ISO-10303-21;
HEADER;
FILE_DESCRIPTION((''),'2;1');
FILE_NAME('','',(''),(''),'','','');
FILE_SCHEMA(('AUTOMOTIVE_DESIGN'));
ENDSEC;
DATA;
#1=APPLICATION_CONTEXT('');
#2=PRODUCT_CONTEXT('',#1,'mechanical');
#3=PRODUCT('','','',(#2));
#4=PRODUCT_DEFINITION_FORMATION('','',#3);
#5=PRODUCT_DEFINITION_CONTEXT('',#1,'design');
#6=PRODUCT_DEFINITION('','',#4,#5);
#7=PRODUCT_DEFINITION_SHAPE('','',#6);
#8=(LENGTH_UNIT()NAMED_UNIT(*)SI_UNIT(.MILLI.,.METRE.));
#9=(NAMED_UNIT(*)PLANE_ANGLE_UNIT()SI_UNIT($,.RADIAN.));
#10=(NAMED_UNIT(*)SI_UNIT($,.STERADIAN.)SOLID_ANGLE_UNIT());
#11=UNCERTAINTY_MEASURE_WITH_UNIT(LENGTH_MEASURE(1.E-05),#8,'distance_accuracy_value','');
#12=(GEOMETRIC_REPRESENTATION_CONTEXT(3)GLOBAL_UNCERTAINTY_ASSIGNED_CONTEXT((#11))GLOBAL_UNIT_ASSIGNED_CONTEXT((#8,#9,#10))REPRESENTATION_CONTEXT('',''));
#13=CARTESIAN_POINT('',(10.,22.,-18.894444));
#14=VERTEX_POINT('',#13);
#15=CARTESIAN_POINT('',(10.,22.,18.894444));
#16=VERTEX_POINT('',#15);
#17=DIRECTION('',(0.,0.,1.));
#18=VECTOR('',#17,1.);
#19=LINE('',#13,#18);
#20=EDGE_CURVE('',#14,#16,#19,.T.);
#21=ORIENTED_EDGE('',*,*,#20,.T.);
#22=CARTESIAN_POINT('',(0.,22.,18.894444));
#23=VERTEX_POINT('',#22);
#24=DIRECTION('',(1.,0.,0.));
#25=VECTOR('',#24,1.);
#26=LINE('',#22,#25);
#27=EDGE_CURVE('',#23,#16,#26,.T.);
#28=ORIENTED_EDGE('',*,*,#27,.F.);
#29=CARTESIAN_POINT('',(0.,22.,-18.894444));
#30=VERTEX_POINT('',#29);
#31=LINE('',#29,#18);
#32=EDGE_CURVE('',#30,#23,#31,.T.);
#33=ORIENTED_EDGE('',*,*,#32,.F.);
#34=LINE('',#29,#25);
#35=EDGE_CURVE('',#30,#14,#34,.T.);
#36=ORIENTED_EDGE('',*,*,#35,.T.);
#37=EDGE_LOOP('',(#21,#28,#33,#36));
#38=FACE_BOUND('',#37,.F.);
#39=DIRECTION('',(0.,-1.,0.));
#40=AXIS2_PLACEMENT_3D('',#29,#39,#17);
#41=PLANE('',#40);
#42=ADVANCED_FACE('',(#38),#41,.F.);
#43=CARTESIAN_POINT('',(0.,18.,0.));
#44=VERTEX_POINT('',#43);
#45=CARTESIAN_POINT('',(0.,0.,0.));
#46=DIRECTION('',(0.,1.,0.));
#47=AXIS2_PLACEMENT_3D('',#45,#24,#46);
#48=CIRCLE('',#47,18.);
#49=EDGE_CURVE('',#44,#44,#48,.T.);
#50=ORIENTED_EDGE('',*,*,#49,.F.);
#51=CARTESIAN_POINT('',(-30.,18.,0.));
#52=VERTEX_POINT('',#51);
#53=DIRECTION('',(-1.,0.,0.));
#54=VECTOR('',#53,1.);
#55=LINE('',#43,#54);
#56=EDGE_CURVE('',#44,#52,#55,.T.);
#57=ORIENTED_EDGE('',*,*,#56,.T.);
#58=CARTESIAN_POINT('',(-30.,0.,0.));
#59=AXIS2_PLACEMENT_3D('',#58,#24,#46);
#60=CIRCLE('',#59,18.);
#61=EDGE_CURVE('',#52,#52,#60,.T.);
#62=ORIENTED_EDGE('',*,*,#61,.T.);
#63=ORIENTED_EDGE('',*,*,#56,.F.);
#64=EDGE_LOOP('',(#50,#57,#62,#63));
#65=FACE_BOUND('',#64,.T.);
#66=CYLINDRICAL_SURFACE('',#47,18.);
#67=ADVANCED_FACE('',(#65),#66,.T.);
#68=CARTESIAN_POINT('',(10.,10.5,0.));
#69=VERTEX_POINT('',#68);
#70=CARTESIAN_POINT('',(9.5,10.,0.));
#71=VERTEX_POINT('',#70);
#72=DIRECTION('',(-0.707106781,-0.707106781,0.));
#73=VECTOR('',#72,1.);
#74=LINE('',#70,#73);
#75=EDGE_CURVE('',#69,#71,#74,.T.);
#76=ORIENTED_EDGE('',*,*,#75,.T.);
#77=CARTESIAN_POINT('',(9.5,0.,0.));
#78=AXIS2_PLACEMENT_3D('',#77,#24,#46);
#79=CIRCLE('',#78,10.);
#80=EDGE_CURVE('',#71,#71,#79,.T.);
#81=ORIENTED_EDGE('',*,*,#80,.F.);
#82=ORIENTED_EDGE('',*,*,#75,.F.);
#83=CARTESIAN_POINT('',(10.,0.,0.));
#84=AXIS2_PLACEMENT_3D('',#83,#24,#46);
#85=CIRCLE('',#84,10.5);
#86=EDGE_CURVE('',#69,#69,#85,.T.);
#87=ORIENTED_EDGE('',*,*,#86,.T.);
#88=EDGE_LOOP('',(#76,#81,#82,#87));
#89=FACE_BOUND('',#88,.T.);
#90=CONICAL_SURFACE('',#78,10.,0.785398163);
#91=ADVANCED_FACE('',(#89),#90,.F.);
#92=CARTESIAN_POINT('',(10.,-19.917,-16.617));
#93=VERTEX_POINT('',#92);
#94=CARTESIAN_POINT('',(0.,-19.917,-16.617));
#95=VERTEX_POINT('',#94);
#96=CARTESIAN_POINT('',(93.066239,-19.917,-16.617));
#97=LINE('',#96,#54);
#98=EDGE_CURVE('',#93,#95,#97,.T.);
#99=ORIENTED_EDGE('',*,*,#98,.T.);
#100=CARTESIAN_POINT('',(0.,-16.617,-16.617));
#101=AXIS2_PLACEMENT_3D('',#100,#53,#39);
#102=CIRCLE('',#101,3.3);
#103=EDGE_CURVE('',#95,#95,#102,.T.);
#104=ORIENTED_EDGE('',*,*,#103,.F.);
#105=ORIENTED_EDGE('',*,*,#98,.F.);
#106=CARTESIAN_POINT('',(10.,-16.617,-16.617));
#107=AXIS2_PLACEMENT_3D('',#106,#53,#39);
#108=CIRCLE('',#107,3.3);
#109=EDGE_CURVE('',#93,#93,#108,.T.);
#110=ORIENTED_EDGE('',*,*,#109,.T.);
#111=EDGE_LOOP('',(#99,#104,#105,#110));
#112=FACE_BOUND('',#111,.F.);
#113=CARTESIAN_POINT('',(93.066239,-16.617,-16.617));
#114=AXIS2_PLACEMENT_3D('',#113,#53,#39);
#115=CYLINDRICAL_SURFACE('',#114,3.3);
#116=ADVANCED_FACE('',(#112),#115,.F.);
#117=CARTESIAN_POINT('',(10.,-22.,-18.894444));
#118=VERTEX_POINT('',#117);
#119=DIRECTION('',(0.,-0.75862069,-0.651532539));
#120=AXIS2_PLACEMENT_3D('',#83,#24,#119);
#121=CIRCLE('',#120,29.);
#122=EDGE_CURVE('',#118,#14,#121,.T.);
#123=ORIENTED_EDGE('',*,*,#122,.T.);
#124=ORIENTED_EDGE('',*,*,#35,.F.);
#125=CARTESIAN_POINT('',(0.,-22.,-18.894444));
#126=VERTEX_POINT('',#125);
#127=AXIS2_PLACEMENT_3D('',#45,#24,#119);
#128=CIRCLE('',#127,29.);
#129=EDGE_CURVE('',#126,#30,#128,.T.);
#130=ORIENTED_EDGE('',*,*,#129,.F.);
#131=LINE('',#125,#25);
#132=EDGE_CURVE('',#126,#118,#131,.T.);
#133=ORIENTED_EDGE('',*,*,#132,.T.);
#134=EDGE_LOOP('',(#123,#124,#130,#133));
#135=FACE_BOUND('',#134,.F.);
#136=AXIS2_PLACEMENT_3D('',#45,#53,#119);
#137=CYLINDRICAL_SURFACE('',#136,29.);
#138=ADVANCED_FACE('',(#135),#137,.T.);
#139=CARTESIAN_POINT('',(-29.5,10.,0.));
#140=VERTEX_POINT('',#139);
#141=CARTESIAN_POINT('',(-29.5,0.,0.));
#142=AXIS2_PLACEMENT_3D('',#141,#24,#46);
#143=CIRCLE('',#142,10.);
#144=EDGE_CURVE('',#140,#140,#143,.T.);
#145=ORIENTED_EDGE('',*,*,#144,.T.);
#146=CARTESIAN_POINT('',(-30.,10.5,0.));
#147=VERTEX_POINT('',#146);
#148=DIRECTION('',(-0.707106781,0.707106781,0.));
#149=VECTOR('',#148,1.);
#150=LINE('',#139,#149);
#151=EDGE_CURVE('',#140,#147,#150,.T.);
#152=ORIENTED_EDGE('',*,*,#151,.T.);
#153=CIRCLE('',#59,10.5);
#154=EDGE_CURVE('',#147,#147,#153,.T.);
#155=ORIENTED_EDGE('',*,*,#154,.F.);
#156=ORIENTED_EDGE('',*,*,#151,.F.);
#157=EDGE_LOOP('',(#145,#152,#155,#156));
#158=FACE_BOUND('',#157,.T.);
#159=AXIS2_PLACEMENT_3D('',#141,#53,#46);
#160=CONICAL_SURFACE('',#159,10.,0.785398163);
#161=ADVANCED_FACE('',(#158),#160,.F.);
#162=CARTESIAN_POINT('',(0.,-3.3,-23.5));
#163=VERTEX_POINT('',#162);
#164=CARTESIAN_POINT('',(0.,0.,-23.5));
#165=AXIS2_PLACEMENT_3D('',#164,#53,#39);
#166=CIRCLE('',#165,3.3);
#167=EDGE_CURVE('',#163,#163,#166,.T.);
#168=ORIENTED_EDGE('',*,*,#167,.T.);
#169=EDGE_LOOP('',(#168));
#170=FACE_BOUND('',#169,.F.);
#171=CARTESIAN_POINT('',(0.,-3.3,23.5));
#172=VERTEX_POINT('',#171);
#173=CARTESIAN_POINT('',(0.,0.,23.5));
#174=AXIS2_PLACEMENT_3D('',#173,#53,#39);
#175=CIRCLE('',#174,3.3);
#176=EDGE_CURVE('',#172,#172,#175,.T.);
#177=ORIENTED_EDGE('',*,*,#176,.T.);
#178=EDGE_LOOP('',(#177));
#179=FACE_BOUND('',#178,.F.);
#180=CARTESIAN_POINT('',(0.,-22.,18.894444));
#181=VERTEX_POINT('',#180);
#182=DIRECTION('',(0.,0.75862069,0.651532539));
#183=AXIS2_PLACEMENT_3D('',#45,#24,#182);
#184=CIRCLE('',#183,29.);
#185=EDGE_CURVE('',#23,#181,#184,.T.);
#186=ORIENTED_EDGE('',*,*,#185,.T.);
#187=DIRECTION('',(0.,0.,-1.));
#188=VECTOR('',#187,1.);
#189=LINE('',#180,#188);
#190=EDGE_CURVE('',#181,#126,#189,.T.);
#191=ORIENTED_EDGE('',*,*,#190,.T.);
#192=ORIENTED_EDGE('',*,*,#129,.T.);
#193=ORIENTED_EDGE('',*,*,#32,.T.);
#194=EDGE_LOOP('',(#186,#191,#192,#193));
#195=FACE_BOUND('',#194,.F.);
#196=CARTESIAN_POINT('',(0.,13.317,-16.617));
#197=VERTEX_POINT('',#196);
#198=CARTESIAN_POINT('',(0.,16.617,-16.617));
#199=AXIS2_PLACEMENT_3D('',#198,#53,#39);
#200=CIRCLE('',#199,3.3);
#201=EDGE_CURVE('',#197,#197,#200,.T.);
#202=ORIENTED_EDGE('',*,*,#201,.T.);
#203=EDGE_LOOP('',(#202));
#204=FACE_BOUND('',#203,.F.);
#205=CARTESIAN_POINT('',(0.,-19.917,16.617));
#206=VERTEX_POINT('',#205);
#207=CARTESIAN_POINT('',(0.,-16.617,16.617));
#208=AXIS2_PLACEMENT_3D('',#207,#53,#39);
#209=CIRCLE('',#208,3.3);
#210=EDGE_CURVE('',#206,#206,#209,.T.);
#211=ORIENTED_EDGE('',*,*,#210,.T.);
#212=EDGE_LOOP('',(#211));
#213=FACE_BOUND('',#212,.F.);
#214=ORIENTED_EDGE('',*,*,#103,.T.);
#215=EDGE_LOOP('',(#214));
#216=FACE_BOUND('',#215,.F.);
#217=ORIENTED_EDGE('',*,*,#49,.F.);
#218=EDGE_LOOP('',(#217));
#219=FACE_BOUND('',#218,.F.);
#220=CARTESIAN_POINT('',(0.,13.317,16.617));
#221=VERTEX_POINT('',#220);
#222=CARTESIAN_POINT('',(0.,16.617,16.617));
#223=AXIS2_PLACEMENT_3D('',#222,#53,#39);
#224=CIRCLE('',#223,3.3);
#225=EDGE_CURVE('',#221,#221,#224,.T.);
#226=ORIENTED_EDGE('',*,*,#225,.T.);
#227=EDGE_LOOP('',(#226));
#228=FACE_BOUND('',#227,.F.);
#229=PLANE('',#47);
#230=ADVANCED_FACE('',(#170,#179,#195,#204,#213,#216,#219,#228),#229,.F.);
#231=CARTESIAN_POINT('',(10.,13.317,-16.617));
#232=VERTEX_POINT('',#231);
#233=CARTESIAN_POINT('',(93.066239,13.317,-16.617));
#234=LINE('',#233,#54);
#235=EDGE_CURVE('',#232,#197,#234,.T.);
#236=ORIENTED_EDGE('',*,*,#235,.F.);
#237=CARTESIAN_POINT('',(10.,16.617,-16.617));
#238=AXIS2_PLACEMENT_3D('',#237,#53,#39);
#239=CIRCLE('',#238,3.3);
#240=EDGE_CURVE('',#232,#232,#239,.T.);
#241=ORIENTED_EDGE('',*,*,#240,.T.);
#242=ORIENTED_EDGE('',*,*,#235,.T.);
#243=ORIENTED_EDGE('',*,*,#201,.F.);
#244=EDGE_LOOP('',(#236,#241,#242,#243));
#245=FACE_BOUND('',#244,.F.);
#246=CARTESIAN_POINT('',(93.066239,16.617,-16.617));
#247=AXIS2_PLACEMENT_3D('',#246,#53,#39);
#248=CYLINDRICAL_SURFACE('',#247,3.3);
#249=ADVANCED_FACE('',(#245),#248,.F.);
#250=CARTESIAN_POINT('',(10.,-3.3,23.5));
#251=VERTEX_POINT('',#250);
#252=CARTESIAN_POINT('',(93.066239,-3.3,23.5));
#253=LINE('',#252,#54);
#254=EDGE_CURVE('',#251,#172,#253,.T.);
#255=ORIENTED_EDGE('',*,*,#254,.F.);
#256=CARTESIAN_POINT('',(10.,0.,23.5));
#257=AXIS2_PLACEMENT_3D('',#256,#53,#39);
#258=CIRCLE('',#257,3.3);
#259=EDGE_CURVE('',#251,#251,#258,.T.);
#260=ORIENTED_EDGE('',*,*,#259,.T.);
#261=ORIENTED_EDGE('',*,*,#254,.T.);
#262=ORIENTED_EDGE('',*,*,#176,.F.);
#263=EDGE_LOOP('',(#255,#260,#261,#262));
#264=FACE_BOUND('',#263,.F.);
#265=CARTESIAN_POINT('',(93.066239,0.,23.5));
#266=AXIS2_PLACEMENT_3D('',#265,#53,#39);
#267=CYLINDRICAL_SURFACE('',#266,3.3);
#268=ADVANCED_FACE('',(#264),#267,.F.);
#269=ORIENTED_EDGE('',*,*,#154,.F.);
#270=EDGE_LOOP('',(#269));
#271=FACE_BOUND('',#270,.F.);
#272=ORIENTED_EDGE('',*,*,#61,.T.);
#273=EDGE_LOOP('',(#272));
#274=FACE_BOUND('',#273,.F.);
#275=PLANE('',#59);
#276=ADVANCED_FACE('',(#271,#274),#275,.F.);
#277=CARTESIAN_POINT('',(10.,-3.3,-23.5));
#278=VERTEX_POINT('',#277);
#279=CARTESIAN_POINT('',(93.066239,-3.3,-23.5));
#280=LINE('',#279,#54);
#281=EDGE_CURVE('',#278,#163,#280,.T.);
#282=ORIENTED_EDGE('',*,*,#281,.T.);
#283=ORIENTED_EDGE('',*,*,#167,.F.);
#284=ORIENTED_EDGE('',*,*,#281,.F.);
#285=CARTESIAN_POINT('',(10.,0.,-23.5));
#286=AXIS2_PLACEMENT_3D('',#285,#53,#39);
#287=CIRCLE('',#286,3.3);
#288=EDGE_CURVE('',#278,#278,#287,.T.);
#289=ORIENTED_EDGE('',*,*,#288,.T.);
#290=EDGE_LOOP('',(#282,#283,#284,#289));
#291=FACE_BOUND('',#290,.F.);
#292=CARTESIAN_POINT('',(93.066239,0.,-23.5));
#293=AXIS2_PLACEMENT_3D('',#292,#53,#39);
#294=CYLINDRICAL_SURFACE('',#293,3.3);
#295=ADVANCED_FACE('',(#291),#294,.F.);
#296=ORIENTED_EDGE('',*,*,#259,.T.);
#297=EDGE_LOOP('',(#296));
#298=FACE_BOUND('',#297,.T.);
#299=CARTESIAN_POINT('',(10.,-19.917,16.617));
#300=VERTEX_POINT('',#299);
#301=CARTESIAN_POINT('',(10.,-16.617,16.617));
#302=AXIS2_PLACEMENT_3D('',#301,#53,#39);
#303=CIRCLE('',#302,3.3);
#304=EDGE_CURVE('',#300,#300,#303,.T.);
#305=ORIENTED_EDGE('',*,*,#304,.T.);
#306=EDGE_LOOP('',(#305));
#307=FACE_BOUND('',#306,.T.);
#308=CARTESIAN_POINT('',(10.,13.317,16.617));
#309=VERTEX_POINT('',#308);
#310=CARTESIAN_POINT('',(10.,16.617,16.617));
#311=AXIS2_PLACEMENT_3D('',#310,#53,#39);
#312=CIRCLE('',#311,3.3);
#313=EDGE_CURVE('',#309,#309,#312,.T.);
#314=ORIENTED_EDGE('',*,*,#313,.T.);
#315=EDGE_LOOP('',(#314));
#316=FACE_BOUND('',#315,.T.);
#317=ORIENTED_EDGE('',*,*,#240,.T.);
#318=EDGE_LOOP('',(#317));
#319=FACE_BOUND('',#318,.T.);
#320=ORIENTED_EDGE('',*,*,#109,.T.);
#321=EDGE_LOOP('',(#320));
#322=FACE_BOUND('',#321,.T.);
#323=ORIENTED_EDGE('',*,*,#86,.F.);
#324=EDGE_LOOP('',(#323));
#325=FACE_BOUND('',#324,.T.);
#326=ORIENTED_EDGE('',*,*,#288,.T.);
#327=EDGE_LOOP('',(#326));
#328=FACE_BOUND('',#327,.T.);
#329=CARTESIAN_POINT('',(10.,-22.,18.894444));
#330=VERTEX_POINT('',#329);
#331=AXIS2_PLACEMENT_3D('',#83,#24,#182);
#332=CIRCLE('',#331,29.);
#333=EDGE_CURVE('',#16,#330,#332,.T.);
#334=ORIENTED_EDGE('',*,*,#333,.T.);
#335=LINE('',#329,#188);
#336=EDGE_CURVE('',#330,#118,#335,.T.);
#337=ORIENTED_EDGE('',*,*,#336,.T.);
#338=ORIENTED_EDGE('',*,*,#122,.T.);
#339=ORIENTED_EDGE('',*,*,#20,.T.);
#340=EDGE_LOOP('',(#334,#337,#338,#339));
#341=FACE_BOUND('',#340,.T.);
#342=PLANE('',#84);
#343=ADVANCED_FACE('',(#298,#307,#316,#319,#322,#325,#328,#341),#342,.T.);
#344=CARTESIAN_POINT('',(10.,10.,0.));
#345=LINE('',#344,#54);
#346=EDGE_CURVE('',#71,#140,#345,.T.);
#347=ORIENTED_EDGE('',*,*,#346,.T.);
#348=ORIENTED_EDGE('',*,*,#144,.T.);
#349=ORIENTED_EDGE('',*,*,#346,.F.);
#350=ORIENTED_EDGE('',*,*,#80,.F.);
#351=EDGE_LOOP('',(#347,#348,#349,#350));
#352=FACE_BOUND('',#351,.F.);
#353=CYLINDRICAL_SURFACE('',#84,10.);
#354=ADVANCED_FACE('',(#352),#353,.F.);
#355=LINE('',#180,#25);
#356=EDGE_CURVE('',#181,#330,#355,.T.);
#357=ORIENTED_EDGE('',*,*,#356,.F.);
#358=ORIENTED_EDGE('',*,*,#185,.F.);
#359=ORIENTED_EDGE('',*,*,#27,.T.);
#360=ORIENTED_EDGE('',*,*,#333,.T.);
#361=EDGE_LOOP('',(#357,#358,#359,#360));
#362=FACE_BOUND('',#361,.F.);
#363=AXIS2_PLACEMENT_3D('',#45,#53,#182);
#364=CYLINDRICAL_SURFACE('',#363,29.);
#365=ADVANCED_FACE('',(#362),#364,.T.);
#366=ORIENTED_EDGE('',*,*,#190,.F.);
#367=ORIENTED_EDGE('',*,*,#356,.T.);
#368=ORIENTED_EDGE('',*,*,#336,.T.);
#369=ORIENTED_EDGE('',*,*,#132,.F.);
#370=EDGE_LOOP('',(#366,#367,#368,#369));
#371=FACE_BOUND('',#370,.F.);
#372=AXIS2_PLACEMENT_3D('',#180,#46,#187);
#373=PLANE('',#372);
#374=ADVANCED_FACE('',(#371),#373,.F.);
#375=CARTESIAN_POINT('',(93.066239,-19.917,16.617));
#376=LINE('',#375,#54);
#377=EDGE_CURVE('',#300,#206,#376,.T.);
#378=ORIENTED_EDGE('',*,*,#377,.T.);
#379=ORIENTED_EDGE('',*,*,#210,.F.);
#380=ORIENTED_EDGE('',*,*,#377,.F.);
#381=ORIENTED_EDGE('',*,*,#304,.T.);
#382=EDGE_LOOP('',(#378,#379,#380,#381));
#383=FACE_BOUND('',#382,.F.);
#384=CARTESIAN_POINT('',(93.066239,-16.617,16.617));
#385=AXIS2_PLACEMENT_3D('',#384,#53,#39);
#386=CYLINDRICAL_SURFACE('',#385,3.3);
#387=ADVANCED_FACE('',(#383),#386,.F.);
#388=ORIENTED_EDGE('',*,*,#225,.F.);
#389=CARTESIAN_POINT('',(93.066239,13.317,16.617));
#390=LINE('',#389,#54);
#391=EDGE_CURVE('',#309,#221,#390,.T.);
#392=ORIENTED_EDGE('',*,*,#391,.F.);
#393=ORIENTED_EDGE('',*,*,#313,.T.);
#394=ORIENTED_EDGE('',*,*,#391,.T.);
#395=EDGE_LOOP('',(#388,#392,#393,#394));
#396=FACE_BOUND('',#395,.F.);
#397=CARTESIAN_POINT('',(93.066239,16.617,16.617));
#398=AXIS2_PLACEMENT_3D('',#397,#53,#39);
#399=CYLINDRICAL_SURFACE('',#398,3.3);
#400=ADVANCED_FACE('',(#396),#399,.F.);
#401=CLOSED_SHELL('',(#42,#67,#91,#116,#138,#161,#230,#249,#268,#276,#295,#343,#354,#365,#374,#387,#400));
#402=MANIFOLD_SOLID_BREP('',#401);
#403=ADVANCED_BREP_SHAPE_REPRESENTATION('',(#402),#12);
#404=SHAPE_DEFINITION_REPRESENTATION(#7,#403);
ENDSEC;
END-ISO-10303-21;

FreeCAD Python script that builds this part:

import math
import FreeCAD as App
import Part
import Sketcher


def edges_at(feature, points):
    """Names of the edges that pass closest to the given points."""
    edges = feature.Shape.Edges
    near = lambda p: min(range(len(edges)), key=lambda i: edges[i].distToShape(Part.Vertex(*p))[0])
    return sorted({f"Edge{near(p) + 1}" for p in points})

doc = App.newDocument("Part")
body = doc.addObject("PartDesign::Body", "Body")

# Sketch on YZ plane
sketch1 = body.newObject("Sketcher::SketchObject", "Sketch")
sketch1.AttachmentSupport = (doc.getObject("YZ_Plane"), [""])
sketch1.MapMode = "FlatFace"
sketch1.addGeometry(Part.Circle(App.Vector(0, 0, 0), App.Vector(0, 0, 1), 18), False)
sketch1.addConstraint([
    Sketcher.Constraint("Coincident", 0, 3, -1, 1),
    Sketcher.Constraint("Diameter", 0, 36.0),
])
pad1 = body.newObject("PartDesign::Pad", "Pad")
pad1.Profile = sketch1
pad1.Length = 30
pad1.Reversed = True

# Sketch on YZ plane
sketch2 = body.newObject("Sketcher::SketchObject", "Sketch001")
sketch2.AttachmentSupport = (doc.getObject("YZ_Plane"), [""])
sketch2.MapMode = "FlatFace"
sketch2.addGeometry([
    Part.LineSegment(App.Vector(-22, 18.894444, 0), App.Vector(-22, -18.894444, 0)),
    Part.ArcOfCircle(Part.Circle(App.Vector(0, 0, 0), App.Vector(0, 0, 1), 29), math.radians(-139.342751), math.radians(-40.657249)),
    Part.LineSegment(App.Vector(22, -18.894444, 0), App.Vector(22, 18.894444, 0)),
    Part.ArcOfCircle(Part.Circle(App.Vector(0, 0, 0), App.Vector(0, 0, 1), 29), math.radians(40.657249), math.radians(139.342751)),
], False)
sketch2.addConstraint([
    Sketcher.Constraint("Coincident", 0, 2, 1, 1),
    Sketcher.Constraint("Coincident", 1, 2, 2, 1),
    Sketcher.Constraint("Coincident", 2, 2, 3, 1),
    Sketcher.Constraint("Coincident", 3, 2, 0, 1),
    Sketcher.Constraint("Vertical", 0),
    Sketcher.Constraint("Vertical", 2),
    Sketcher.Constraint("Coincident", 1, 3, -1, 1),
    Sketcher.Constraint("Coincident", 3, 3, -1, 1),
    Sketcher.Constraint("Equal", 1, 3),
    Sketcher.Constraint("Horizontal", 0, 2, 1, 2),
    Sketcher.Constraint("Radius", 1, 29.0),
    Sketcher.Constraint("DistanceX", 0, 2, -1, 1, 22.0),
])
pad2 = body.newObject("PartDesign::Pad", "Pad001")
pad2.Profile = sketch2
pad2.Length = 10

# Sketch on YZ plane
sketch3 = body.newObject("Sketcher::SketchObject", "Sketch002")
sketch3.AttachmentSupport = (doc.getObject("YZ_Plane"), [""])
sketch3.MapMode = "FlatFace"
sketch3.AttachmentOffset = App.Placement(App.Vector(0, 0, 10), App.Rotation())
sketch3.addGeometry(Part.Circle(App.Vector(0, 0, 0), App.Vector(0, 0, 1), 10), False)
sketch3.addConstraint([
    Sketcher.Constraint("Coincident", 0, 3, -1, 1),
    Sketcher.Constraint("Diameter", 0, 20.0),
])
pocket1 = body.newObject("PartDesign::Pocket", "Pocket")
pocket1.Profile = sketch3
pocket1.Type = "ThroughAll"
doc.recompute()

chamfer = body.newObject("PartDesign::Chamfer", "Chamfer")
chamfer.Base = (pocket1, edges_at(pocket1, [(10, -10, 0), (-30, -10, 0)]))
chamfer.Size = 0.5

# Sketch on YZ plane
sketch4 = body.newObject("Sketcher::SketchObject", "Sketch003")
sketch4.AttachmentSupport = (doc.getObject("YZ_Plane"), [""])
sketch4.MapMode = "FlatFace"
sketch4.AttachmentOffset = App.Placement(App.Vector(0, 0, 10), App.Rotation())
sketch4.addGeometry([
    Part.Circle(App.Vector(0, 23.5, 0), App.Vector(0, 0, 1), 3.3),  # 0
    Part.Circle(App.Vector(16.617, 16.617, 0), App.Vector(0, 0, 1), 3.3),  # 1
    Part.Circle(App.Vector(16.617, -16.617, 0), App.Vector(0, 0, 1), 3.3),  # 2
    Part.Circle(App.Vector(0, -23.5, 0), App.Vector(0, 0, 1), 3.3),  # 3
    Part.Circle(App.Vector(-16.617, -16.617, 0), App.Vector(0, 0, 1), 3.3),  # 4
    Part.Circle(App.Vector(-16.617, 16.617, 0), App.Vector(0, 0, 1), 3.3),  # 5
], False)
sketch4.addConstraint([
    Sketcher.Constraint("Equal", 0, 1),
    Sketcher.Constraint("Equal", 1, 2),
    Sketcher.Constraint("Equal", 2, 3),
    Sketcher.Constraint("Equal", 3, 4),
    Sketcher.Constraint("Equal", 4, 5),
    Sketcher.Constraint("Symmetric", 0, 3, 3, 3, -1, 1),
    Sketcher.Constraint("Symmetric", 1, 3, 4, 3, -1, 1),
    Sketcher.Constraint("Symmetric", 2, 3, 5, 3, -1, 1),
    Sketcher.Constraint("Symmetric", 2, 3, 4, 3, -2),
    Sketcher.Constraint("PointOnObject", 0, 3, -2),
    Sketcher.Constraint("Diameter", 0, 6.6),
    Sketcher.Constraint("DistanceY", 3, 3, 0, 3, 47.0),
    Sketcher.Constraint("DistanceX", -1, 1, 1, 3, 16.617),
    Sketcher.Constraint("DistanceY", -1, 1, 1, 3, 16.617),
])
doc.recompute()
hole = body.newObject("PartDesign::Hole", "Hole")
hole.Profile = sketch4
hole.ThreadType = "None"
hole.Diameter = 6.6
hole.DepthType = "ThroughAll"

doc.recompute()
